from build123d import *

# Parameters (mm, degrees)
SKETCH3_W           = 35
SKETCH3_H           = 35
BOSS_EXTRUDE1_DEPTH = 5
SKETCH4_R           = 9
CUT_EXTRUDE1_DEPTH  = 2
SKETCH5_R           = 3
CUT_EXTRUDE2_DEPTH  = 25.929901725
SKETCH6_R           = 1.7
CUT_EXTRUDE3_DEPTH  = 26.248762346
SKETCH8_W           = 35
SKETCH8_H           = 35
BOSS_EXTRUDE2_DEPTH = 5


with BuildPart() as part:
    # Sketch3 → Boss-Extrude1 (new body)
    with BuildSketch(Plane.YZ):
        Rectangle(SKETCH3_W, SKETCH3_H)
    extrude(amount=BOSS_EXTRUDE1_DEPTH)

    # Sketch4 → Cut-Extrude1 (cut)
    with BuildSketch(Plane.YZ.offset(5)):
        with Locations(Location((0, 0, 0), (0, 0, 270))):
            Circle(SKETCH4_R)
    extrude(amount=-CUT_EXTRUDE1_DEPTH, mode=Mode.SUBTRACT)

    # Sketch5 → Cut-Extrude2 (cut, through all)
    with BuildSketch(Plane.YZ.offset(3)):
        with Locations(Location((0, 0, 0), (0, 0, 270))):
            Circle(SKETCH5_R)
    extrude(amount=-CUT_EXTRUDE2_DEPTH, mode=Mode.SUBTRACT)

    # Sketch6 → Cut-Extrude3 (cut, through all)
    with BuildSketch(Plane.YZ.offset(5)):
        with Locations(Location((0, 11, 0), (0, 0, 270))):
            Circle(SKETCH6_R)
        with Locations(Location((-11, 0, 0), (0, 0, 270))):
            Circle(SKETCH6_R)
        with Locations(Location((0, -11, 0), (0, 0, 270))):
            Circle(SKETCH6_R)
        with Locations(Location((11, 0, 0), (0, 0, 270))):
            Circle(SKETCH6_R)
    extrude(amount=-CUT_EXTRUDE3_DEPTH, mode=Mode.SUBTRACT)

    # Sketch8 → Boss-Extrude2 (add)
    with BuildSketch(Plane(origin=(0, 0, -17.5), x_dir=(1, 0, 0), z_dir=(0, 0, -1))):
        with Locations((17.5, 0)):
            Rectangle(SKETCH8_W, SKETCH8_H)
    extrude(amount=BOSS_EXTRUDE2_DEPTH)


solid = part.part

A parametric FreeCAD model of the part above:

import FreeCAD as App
import Part
import Sketcher

doc = App.newDocument("Part")
body = doc.addObject("PartDesign::Body", "Body")

sketch1 = body.newObject("Sketcher::SketchObject", "Sketch")
sketch1.AttachmentSupport = (doc.getObject("YZ_Plane"), [""])
sketch1.MapMode = "FlatFace"
sketch1.addGeometry([
    Part.LineSegment(App.Vector(-18, 18, 0), App.Vector(-18, -18, 0)),
    Part.LineSegment(App.Vector(-18, -18, 0), App.Vector(18, -18, 0)),
    Part.LineSegment(App.Vector(18, -18, 0), App.Vector(18, 18, 0)),
    Part.LineSegment(App.Vector(18, 18, 0), App.Vector(-18, 18, 0)),
], False)
sketch1.addConstraint([
    Sketcher.Constraint("Coincident", 0, 2, 1, 1),
    Sketcher.Constraint("Coincident", 1, 2, 2, 1),
    Sketcher.Constraint("Coincident", 2, 2, 3, 1),
    Sketcher.Constraint("Coincident", 3, 2, 0, 1),
    Sketcher.Constraint("Vertical", 0),
    Sketcher.Constraint("Horizontal", 1),
    Sketcher.Constraint("Vertical", 2),
    Sketcher.Constraint("Horizontal", 3),
    Sketcher.Constraint("Symmetric", 0, 2, 2, 2, -1, 1),
    Sketcher.Constraint("Equal", 3, 0),
    Sketcher.Constraint("DistanceX", 1, 1, 1, 2, 35.0),
])
pad1 = body.newObject("PartDesign::Pad", "Pad")
pad1.Profile = sketch1
pad1.Length = 5

sketch2 = body.newObject("Sketcher::SketchObject", "Sketch001")
sketch2.AttachmentSupport = (doc.getObject("YZ_Plane"), [""])
sketch2.MapMode = "FlatFace"
sketch2.AttachmentOffset = App.Placement(App.Vector(0, 0, 5), App.Rotation())
sketch2.addGeometry(Part.Circle(App.Vector(0, 0, 0), App.Vector(0, 0, 1), 9), False)
sketch2.addConstraint([
    Sketcher.Constraint("Coincident", 0, 3, -1, 1),
    Sketcher.Constraint("Diameter", 0, 18.0),
])
pocket1 = body.newObject("PartDesign::Pocket", "Pocket")
pocket1.Profile = sketch2
pocket1.Length = 2

sketch3 = body.newObject("Sketcher::SketchObject", "Sketch002")
sketch3.AttachmentSupport = (doc.getObject("YZ_Plane"), [""])
sketch3.MapMode = "FlatFace"
sketch3.AttachmentOffset = App.Placement(App.Vector(0, 0, 3), App.Rotation())
sketch3.addGeometry(Part.Circle(App.Vector(0, 0, 0), App.Vector(0, 0, 1), 3), False)
sketch3.addConstraint([
    Sketcher.Constraint("Coincident", 0, 3, -1, 1),
    Sketcher.Constraint("Diameter", 0, 6.0),
])
pocket2 = body.newObject("PartDesign::Pocket", "Pocket001")
pocket2.Profile = sketch3
pocket2.Type = "ThroughAll"

sketch4 = body.newObject("Sketcher::SketchObject", "Sketch003")
sketch4.AttachmentSupport = (doc.getObject("YZ_Plane"), [""])
sketch4.MapMode = "FlatFace"
sketch4.AttachmentOffset = App.Placement(App.Vector(0, 0, 5), App.Rotation())
sketch4.addGeometry([
    Part.Circle(App.Vector(0, 11, 0), App.Vector(0, 0, 1), 1.7),
    Part.Circle(App.Vector(-11, 0, 0), App.Vector(0, 0, 1), 1.7),
    Part.Circle(App.Vector(0, -11, 0), App.Vector(0, 0, 1), 1.7),
    Part.Circle(App.Vector(11, 0, 0), App.Vector(0, 0, 1), 1.7),
], False)
sketch4.addConstraint([
    Sketcher.Constraint("Equal", 0, 1),
    Sketcher.Constraint("Equal", 1, 2),
    Sketcher.Constraint("Equal", 2, 3),
    Sketcher.Constraint("Symmetric", 0, 3, 2, 3, -1, 1),
    Sketcher.Constraint("Symmetric", 1, 3, 3, 3, -1, 1),
    Sketcher.Constraint("PointOnObject", 0, 3, -2),
    Sketcher.Constraint("PointOnObject", 1, 3, -1),
    Sketcher.Constraint("Diameter", 0, 3.4),
    Sketcher.Constraint("DistanceY", -1, 1, 0, 3, 11.0),
    Sketcher.Constraint("DistanceX", 1, 3, -1, 1, 11.0),
])
pocket3 = body.newObject("PartDesign::Pocket", "Pocket002")
pocket3.Profile = sketch4
pocket3.Type = "ThroughAll"

sketch5 = body.newObject("Sketcher::SketchObject", "Sketch004")
sketch5.AttachmentSupport = (doc.getObject("XY_Plane"), [""])
sketch5.MapMode = "FlatFace"
sketch5.AttachmentOffset = App.Placement(App.Vector(0, 0, -17.5), App.Rotation())
sketch5.addGeometry([
    Part.LineSegment(App.Vector(0, -18, 0), App.Vector(0, 18, 0)),
    Part.LineSegment(App.Vector(0, 18, 0), App.Vector(35, 18, 0)),
    Part.LineSegment(App.Vector(35, 18, 0), App.Vector(35, -18, 0)),
    Part.LineSegment(App.Vector(35, -18, 0), App.Vector(0, -18, 0)),
], False)
sketch5.addConstraint([
    Sketcher.Constraint("Coincident", 0, 2, 1, 1),
    Sketcher.Constraint("Coincident", 1, 2, 2, 1),
    Sketcher.Constraint("Coincident", 2, 2, 3, 1),
    Sketcher.Constraint("Coincident", 3, 2, 0, 1),
    Sketcher.Constraint("Vertical", 0),
    Sketcher.Constraint("Horizontal", 1),
    Sketcher.Constraint("Vertical", 2),
    Sketcher.Constraint("Horizontal", 3),
    Sketcher.Constraint("Symmetric", 0, 2, 3, 2, -1, 1),
    Sketcher.Constraint("Equal", 3, 0),
    Sketcher.Constraint("DistanceX", 1, 1, 1, 2, 35.0),
])
pad2 = body.newObject("PartDesign::Pad", "Pad001")
pad2.Profile = sketch5
pad2.Length = 5
pad2.Reversed = True

doc.recompute()
